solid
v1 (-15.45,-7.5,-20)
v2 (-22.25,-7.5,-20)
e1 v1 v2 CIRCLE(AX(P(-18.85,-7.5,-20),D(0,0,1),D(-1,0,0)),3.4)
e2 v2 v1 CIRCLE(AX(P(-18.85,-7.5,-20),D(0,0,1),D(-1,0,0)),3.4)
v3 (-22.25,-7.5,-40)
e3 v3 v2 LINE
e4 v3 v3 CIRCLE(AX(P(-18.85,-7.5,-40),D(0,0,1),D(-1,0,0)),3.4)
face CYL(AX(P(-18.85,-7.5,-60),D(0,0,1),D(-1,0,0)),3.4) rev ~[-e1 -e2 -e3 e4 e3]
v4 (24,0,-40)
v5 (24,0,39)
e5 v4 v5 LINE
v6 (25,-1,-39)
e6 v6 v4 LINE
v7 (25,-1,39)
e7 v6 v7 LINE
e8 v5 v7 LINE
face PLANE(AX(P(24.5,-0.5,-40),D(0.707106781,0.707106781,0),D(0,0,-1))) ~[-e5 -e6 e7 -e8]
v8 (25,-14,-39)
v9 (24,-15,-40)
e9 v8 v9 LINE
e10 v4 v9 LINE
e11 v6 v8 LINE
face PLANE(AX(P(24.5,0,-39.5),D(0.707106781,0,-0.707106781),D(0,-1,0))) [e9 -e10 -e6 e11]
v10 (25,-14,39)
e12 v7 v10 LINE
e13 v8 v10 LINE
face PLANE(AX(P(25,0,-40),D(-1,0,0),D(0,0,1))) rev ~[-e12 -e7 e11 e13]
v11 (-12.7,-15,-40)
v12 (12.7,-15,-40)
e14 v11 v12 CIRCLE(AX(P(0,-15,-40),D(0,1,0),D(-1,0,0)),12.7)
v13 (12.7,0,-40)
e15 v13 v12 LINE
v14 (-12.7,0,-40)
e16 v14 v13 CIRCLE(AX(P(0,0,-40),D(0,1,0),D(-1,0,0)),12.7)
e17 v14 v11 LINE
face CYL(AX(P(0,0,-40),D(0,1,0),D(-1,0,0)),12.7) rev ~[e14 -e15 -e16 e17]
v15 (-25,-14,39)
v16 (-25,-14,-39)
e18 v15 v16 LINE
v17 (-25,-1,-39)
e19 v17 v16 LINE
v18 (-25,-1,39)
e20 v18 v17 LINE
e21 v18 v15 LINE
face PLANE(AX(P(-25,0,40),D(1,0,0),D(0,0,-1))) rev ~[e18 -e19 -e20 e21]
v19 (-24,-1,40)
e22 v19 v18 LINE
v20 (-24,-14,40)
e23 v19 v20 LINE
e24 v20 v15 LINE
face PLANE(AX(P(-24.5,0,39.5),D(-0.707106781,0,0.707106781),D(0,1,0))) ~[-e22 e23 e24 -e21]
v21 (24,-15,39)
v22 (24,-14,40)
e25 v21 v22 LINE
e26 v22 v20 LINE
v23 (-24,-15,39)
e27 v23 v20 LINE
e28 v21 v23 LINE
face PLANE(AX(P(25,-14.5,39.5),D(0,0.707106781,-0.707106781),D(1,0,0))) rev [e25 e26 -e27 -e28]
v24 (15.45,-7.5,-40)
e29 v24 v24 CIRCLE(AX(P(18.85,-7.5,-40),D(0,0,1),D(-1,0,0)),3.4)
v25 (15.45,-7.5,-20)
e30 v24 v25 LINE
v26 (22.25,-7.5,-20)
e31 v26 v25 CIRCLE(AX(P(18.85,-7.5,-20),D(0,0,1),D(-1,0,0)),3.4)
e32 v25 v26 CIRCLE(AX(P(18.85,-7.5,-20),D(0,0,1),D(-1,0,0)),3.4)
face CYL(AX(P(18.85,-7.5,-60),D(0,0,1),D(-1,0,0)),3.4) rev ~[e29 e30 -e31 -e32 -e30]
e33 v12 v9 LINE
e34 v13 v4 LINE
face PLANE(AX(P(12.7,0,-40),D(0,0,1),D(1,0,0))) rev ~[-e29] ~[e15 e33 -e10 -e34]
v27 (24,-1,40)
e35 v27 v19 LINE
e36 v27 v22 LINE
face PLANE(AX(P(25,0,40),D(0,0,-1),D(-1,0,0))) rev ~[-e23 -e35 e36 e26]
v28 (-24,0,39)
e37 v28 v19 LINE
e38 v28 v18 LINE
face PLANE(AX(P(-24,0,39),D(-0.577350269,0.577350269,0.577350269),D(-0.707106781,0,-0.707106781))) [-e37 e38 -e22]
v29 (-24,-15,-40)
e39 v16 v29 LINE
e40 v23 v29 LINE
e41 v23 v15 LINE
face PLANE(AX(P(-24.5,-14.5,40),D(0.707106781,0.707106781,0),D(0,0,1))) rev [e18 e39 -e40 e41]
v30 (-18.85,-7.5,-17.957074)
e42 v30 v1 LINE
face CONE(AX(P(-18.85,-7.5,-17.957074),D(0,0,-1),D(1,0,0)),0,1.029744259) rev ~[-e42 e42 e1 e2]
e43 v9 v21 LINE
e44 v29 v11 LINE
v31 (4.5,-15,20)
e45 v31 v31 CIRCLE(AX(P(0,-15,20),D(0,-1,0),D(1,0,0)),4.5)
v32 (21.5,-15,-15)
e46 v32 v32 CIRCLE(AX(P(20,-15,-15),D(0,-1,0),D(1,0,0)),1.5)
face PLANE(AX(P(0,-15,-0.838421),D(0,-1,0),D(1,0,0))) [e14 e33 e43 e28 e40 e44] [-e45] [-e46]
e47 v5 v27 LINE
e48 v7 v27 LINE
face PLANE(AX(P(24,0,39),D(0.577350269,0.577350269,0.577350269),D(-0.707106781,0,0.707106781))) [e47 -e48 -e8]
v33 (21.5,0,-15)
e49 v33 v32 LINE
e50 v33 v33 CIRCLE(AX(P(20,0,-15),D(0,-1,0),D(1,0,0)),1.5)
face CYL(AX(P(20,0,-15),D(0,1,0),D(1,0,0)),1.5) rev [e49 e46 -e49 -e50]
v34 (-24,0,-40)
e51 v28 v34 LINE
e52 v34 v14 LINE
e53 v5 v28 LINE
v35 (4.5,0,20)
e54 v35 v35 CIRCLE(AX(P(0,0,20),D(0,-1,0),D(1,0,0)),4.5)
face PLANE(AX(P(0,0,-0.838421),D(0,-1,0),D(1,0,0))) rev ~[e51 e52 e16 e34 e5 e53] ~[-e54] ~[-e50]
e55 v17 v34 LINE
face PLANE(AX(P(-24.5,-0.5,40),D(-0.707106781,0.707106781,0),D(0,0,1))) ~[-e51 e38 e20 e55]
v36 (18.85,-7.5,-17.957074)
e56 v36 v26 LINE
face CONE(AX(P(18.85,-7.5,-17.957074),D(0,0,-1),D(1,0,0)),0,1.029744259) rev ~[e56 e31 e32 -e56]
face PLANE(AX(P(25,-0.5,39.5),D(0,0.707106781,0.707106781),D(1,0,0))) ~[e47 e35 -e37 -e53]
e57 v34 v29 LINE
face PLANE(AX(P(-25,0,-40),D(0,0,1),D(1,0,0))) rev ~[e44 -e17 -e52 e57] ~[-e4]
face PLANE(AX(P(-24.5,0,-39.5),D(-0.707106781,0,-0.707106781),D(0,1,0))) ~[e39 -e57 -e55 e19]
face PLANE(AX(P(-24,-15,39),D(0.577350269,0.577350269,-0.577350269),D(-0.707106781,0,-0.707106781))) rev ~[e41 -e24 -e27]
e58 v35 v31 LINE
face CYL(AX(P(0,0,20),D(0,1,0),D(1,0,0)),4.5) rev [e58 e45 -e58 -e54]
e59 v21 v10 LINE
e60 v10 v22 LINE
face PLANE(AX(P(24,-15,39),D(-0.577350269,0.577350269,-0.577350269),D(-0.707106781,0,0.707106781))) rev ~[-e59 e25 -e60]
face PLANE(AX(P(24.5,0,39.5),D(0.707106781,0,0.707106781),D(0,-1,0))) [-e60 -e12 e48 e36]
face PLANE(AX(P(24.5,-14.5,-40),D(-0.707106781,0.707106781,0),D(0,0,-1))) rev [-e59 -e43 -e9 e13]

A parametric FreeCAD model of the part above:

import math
import FreeCAD as App
import Part
import Sketcher
Q = App.Units.Quantity


def edges_at(feature, points):
    """Names of the edges that pass closest to the given points."""
    edges = feature.Shape.Edges
    near = lambda p: min(range(len(edges)), key=lambda i: edges[i].distToShape(Part.Vertex(*p))[0])
    return sorted({f"Edge{near(p) + 1}" for p in points})

doc = App.newDocument("Part")
body = doc.addObject("PartDesign::Body", "Body")

sketch1 = doc.addObject("Sketcher::SketchObject", "Sketch")
body.addObject(sketch1)
sketch1.AttachmentSupport = (doc.XZ_Plane, [""])
sketch1.MapMode = "FlatFace"
sketch1.addGeometry([
    Part.LineSegment(App.Vector(25, 40, 0), App.Vector(-25, 40, 0)),
    Part.LineSegment(App.Vector(-25, 40, 0), App.Vector(-25, -40, 0)),
    Part.LineSegment(App.Vector(-25, -40, 0), App.Vector(-12.7, -40, 0)),
    Part.ArcOfCircle(Part.Circle(App.Vector(0, -40, 0), App.Vector(0, 0, 1), 12.7), math.radians(0), math.radians(180)),
    Part.LineSegment(App.Vector(12.7, -40, 0), App.Vector(25, -40, 0)),
    Part.LineSegment(App.Vector(25, -40, 0), App.Vector(25, 40, 0)),
    Part.Circle(App.Vector(20, -15, 0), App.Vector(0, 0, 1), 1.5),
    Part.Circle(App.Vector(0, 20, 0), App.Vector(0, 0, 1), 4.5),
], False)
sketch1.addConstraint([
    Sketcher.Constraint("Coincident", 0, 2, 1, 1),
    Sketcher.Constraint("Coincident", 1, 2, 2, 1),
    Sketcher.Constraint("Coincident", 2, 2, 3, 2),
    Sketcher.Constraint("Coincident", 3, 1, 4, 1),
    Sketcher.Constraint("Coincident", 4, 2, 5, 1),
    Sketcher.Constraint("Coincident", 5, 2, 0, 1),
    Sketcher.Constraint("Horizontal", 0),
    Sketcher.Constraint("Vertical", 1),
    Sketcher.Constraint("Horizontal", 2),
    Sketcher.Constraint("Horizontal", 4),
    Sketcher.Constraint("Vertical", 5),
    Sketcher.Constraint("Symmetric", 0, 2, 4, 2, -1, 1),
    Sketcher.Constraint("Symmetric", 2, 2, 3, 1, -2),
    Sketcher.Constraint("PointOnObject", 7, 3, -2),
    Sketcher.Constraint("Horizontal", 3, 3, 1, 2),
    Sketcher.Constraint("Diameter", 6, Q("3 mm")),
    Sketcher.Constraint("Diameter", 7, Q("9 mm")),
    Sketcher.Constraint("Radius", 3, Q("12.7 mm")),
    Sketcher.Constraint("DistanceX", 0, 2, 0, 1, Q("50 mm")),
    Sketcher.Constraint("DistanceY", 1, 2, 1, 1, Q("80 mm")),
    Sketcher.Constraint("DistanceX", -1, 1, 6, 3, Q("20 mm")),
    Sketcher.Constraint("DistanceY", 6, 3, -1, 1, Q("15 mm")),
    Sketcher.Constraint("DistanceY", -1, 1, 7, 3, Q("20 mm")),
])
pad1 = doc.addObject("PartDesign::Pad", "Pad")
body.addObject(pad1)
pad1.Profile = sketch1
pad1.Length = 15

sketch2 = doc.addObject("Sketcher::SketchObject", "Sketch001")
body.addObject(sketch2)
sketch2.AttachmentSupport = (doc.XY_Plane, [""])
sketch2.MapMode = "FlatFace"
sketch2.AttachmentOffset = App.Placement(App.Vector(0, 0, -40), App.Rotation())
sketch2.addGeometry(Part.Circle(App.Vector(-18.9, -7.5, 0), App.Vector(0, 0, 1), 3.4), False)
sketch2.addConstraint([
    Sketcher.Constraint("Diameter", 0, Q("6.8 mm")),
    Sketcher.Constraint("DistanceY", 0, 3, -1, 1, Q("7.5 mm")),
    Sketcher.Constraint("DistanceX", 0, 3, -1, 1, Q("18.85 mm")),
])
doc.recompute()
hole = doc.addObject("PartDesign::Hole", "Hole")
body.addObject(hole)
hole.Profile = sketch2
hole.ThreadType = "None"
hole.Diameter = 6.8
hole.DepthType = "Dimension"
hole.Depth = 20
hole.DrillPoint = "Angled"
hole.DrillPointAngle = 118
hole.Reversed = True

sketch3 = doc.addObject("Sketcher::SketchObject", "Sketch002")
body.addObject(sketch3)
sketch3.AttachmentSupport = (doc.XY_Plane, [""])
sketch3.MapMode = "FlatFace"
sketch3.AttachmentOffset = App.Placement(App.Vector(0, 0, -40), App.Rotation())
sketch3.addGeometry(Part.Circle(App.Vector(18.9, -7.5, 0), App.Vector(0, 0, 1), 3.4), False)
sketch3.addConstraint([
    Sketcher.Constraint("Diameter", 0, Q("6.8 mm")),
    Sketcher.Constraint("DistanceY", 0, 3, -1, 1, Q("7.5 mm")),
    Sketcher.Constraint("DistanceX", -1, 1, 0, 3, Q("18.85 mm")),
])
doc.recompute()
hole2 = doc.addObject("PartDesign::Hole", "Hole001")
body.addObject(hole2)
hole2.Profile = sketch3
hole2.ThreadType = "None"
hole2.Diameter = 6.8
hole2.DepthType = "Dimension"
hole2.Depth = 20
hole2.DrillPoint = "Angled"
hole2.DrillPointAngle = 118
hole2.Reversed = True
doc.recompute()

chamfer = doc.addObject("PartDesign::Chamfer", "Chamfer")
body.addObject(chamfer)
chamfer.Base = (hole2, edges_at(hole2, [
    (25, -7.5, -40),
    (25, -7.5, 40),
    (25, 0, 0),
    (25, -15, 0),
    (-25, -7.5, 40),
    (0, 0, 40),
    (0, -15, 40),
    (-25, -7.5, -40),
    (-25, 0, 0),
    (-25, -15, 0),
]))
chamfer.Size = 1

doc.recompute()
